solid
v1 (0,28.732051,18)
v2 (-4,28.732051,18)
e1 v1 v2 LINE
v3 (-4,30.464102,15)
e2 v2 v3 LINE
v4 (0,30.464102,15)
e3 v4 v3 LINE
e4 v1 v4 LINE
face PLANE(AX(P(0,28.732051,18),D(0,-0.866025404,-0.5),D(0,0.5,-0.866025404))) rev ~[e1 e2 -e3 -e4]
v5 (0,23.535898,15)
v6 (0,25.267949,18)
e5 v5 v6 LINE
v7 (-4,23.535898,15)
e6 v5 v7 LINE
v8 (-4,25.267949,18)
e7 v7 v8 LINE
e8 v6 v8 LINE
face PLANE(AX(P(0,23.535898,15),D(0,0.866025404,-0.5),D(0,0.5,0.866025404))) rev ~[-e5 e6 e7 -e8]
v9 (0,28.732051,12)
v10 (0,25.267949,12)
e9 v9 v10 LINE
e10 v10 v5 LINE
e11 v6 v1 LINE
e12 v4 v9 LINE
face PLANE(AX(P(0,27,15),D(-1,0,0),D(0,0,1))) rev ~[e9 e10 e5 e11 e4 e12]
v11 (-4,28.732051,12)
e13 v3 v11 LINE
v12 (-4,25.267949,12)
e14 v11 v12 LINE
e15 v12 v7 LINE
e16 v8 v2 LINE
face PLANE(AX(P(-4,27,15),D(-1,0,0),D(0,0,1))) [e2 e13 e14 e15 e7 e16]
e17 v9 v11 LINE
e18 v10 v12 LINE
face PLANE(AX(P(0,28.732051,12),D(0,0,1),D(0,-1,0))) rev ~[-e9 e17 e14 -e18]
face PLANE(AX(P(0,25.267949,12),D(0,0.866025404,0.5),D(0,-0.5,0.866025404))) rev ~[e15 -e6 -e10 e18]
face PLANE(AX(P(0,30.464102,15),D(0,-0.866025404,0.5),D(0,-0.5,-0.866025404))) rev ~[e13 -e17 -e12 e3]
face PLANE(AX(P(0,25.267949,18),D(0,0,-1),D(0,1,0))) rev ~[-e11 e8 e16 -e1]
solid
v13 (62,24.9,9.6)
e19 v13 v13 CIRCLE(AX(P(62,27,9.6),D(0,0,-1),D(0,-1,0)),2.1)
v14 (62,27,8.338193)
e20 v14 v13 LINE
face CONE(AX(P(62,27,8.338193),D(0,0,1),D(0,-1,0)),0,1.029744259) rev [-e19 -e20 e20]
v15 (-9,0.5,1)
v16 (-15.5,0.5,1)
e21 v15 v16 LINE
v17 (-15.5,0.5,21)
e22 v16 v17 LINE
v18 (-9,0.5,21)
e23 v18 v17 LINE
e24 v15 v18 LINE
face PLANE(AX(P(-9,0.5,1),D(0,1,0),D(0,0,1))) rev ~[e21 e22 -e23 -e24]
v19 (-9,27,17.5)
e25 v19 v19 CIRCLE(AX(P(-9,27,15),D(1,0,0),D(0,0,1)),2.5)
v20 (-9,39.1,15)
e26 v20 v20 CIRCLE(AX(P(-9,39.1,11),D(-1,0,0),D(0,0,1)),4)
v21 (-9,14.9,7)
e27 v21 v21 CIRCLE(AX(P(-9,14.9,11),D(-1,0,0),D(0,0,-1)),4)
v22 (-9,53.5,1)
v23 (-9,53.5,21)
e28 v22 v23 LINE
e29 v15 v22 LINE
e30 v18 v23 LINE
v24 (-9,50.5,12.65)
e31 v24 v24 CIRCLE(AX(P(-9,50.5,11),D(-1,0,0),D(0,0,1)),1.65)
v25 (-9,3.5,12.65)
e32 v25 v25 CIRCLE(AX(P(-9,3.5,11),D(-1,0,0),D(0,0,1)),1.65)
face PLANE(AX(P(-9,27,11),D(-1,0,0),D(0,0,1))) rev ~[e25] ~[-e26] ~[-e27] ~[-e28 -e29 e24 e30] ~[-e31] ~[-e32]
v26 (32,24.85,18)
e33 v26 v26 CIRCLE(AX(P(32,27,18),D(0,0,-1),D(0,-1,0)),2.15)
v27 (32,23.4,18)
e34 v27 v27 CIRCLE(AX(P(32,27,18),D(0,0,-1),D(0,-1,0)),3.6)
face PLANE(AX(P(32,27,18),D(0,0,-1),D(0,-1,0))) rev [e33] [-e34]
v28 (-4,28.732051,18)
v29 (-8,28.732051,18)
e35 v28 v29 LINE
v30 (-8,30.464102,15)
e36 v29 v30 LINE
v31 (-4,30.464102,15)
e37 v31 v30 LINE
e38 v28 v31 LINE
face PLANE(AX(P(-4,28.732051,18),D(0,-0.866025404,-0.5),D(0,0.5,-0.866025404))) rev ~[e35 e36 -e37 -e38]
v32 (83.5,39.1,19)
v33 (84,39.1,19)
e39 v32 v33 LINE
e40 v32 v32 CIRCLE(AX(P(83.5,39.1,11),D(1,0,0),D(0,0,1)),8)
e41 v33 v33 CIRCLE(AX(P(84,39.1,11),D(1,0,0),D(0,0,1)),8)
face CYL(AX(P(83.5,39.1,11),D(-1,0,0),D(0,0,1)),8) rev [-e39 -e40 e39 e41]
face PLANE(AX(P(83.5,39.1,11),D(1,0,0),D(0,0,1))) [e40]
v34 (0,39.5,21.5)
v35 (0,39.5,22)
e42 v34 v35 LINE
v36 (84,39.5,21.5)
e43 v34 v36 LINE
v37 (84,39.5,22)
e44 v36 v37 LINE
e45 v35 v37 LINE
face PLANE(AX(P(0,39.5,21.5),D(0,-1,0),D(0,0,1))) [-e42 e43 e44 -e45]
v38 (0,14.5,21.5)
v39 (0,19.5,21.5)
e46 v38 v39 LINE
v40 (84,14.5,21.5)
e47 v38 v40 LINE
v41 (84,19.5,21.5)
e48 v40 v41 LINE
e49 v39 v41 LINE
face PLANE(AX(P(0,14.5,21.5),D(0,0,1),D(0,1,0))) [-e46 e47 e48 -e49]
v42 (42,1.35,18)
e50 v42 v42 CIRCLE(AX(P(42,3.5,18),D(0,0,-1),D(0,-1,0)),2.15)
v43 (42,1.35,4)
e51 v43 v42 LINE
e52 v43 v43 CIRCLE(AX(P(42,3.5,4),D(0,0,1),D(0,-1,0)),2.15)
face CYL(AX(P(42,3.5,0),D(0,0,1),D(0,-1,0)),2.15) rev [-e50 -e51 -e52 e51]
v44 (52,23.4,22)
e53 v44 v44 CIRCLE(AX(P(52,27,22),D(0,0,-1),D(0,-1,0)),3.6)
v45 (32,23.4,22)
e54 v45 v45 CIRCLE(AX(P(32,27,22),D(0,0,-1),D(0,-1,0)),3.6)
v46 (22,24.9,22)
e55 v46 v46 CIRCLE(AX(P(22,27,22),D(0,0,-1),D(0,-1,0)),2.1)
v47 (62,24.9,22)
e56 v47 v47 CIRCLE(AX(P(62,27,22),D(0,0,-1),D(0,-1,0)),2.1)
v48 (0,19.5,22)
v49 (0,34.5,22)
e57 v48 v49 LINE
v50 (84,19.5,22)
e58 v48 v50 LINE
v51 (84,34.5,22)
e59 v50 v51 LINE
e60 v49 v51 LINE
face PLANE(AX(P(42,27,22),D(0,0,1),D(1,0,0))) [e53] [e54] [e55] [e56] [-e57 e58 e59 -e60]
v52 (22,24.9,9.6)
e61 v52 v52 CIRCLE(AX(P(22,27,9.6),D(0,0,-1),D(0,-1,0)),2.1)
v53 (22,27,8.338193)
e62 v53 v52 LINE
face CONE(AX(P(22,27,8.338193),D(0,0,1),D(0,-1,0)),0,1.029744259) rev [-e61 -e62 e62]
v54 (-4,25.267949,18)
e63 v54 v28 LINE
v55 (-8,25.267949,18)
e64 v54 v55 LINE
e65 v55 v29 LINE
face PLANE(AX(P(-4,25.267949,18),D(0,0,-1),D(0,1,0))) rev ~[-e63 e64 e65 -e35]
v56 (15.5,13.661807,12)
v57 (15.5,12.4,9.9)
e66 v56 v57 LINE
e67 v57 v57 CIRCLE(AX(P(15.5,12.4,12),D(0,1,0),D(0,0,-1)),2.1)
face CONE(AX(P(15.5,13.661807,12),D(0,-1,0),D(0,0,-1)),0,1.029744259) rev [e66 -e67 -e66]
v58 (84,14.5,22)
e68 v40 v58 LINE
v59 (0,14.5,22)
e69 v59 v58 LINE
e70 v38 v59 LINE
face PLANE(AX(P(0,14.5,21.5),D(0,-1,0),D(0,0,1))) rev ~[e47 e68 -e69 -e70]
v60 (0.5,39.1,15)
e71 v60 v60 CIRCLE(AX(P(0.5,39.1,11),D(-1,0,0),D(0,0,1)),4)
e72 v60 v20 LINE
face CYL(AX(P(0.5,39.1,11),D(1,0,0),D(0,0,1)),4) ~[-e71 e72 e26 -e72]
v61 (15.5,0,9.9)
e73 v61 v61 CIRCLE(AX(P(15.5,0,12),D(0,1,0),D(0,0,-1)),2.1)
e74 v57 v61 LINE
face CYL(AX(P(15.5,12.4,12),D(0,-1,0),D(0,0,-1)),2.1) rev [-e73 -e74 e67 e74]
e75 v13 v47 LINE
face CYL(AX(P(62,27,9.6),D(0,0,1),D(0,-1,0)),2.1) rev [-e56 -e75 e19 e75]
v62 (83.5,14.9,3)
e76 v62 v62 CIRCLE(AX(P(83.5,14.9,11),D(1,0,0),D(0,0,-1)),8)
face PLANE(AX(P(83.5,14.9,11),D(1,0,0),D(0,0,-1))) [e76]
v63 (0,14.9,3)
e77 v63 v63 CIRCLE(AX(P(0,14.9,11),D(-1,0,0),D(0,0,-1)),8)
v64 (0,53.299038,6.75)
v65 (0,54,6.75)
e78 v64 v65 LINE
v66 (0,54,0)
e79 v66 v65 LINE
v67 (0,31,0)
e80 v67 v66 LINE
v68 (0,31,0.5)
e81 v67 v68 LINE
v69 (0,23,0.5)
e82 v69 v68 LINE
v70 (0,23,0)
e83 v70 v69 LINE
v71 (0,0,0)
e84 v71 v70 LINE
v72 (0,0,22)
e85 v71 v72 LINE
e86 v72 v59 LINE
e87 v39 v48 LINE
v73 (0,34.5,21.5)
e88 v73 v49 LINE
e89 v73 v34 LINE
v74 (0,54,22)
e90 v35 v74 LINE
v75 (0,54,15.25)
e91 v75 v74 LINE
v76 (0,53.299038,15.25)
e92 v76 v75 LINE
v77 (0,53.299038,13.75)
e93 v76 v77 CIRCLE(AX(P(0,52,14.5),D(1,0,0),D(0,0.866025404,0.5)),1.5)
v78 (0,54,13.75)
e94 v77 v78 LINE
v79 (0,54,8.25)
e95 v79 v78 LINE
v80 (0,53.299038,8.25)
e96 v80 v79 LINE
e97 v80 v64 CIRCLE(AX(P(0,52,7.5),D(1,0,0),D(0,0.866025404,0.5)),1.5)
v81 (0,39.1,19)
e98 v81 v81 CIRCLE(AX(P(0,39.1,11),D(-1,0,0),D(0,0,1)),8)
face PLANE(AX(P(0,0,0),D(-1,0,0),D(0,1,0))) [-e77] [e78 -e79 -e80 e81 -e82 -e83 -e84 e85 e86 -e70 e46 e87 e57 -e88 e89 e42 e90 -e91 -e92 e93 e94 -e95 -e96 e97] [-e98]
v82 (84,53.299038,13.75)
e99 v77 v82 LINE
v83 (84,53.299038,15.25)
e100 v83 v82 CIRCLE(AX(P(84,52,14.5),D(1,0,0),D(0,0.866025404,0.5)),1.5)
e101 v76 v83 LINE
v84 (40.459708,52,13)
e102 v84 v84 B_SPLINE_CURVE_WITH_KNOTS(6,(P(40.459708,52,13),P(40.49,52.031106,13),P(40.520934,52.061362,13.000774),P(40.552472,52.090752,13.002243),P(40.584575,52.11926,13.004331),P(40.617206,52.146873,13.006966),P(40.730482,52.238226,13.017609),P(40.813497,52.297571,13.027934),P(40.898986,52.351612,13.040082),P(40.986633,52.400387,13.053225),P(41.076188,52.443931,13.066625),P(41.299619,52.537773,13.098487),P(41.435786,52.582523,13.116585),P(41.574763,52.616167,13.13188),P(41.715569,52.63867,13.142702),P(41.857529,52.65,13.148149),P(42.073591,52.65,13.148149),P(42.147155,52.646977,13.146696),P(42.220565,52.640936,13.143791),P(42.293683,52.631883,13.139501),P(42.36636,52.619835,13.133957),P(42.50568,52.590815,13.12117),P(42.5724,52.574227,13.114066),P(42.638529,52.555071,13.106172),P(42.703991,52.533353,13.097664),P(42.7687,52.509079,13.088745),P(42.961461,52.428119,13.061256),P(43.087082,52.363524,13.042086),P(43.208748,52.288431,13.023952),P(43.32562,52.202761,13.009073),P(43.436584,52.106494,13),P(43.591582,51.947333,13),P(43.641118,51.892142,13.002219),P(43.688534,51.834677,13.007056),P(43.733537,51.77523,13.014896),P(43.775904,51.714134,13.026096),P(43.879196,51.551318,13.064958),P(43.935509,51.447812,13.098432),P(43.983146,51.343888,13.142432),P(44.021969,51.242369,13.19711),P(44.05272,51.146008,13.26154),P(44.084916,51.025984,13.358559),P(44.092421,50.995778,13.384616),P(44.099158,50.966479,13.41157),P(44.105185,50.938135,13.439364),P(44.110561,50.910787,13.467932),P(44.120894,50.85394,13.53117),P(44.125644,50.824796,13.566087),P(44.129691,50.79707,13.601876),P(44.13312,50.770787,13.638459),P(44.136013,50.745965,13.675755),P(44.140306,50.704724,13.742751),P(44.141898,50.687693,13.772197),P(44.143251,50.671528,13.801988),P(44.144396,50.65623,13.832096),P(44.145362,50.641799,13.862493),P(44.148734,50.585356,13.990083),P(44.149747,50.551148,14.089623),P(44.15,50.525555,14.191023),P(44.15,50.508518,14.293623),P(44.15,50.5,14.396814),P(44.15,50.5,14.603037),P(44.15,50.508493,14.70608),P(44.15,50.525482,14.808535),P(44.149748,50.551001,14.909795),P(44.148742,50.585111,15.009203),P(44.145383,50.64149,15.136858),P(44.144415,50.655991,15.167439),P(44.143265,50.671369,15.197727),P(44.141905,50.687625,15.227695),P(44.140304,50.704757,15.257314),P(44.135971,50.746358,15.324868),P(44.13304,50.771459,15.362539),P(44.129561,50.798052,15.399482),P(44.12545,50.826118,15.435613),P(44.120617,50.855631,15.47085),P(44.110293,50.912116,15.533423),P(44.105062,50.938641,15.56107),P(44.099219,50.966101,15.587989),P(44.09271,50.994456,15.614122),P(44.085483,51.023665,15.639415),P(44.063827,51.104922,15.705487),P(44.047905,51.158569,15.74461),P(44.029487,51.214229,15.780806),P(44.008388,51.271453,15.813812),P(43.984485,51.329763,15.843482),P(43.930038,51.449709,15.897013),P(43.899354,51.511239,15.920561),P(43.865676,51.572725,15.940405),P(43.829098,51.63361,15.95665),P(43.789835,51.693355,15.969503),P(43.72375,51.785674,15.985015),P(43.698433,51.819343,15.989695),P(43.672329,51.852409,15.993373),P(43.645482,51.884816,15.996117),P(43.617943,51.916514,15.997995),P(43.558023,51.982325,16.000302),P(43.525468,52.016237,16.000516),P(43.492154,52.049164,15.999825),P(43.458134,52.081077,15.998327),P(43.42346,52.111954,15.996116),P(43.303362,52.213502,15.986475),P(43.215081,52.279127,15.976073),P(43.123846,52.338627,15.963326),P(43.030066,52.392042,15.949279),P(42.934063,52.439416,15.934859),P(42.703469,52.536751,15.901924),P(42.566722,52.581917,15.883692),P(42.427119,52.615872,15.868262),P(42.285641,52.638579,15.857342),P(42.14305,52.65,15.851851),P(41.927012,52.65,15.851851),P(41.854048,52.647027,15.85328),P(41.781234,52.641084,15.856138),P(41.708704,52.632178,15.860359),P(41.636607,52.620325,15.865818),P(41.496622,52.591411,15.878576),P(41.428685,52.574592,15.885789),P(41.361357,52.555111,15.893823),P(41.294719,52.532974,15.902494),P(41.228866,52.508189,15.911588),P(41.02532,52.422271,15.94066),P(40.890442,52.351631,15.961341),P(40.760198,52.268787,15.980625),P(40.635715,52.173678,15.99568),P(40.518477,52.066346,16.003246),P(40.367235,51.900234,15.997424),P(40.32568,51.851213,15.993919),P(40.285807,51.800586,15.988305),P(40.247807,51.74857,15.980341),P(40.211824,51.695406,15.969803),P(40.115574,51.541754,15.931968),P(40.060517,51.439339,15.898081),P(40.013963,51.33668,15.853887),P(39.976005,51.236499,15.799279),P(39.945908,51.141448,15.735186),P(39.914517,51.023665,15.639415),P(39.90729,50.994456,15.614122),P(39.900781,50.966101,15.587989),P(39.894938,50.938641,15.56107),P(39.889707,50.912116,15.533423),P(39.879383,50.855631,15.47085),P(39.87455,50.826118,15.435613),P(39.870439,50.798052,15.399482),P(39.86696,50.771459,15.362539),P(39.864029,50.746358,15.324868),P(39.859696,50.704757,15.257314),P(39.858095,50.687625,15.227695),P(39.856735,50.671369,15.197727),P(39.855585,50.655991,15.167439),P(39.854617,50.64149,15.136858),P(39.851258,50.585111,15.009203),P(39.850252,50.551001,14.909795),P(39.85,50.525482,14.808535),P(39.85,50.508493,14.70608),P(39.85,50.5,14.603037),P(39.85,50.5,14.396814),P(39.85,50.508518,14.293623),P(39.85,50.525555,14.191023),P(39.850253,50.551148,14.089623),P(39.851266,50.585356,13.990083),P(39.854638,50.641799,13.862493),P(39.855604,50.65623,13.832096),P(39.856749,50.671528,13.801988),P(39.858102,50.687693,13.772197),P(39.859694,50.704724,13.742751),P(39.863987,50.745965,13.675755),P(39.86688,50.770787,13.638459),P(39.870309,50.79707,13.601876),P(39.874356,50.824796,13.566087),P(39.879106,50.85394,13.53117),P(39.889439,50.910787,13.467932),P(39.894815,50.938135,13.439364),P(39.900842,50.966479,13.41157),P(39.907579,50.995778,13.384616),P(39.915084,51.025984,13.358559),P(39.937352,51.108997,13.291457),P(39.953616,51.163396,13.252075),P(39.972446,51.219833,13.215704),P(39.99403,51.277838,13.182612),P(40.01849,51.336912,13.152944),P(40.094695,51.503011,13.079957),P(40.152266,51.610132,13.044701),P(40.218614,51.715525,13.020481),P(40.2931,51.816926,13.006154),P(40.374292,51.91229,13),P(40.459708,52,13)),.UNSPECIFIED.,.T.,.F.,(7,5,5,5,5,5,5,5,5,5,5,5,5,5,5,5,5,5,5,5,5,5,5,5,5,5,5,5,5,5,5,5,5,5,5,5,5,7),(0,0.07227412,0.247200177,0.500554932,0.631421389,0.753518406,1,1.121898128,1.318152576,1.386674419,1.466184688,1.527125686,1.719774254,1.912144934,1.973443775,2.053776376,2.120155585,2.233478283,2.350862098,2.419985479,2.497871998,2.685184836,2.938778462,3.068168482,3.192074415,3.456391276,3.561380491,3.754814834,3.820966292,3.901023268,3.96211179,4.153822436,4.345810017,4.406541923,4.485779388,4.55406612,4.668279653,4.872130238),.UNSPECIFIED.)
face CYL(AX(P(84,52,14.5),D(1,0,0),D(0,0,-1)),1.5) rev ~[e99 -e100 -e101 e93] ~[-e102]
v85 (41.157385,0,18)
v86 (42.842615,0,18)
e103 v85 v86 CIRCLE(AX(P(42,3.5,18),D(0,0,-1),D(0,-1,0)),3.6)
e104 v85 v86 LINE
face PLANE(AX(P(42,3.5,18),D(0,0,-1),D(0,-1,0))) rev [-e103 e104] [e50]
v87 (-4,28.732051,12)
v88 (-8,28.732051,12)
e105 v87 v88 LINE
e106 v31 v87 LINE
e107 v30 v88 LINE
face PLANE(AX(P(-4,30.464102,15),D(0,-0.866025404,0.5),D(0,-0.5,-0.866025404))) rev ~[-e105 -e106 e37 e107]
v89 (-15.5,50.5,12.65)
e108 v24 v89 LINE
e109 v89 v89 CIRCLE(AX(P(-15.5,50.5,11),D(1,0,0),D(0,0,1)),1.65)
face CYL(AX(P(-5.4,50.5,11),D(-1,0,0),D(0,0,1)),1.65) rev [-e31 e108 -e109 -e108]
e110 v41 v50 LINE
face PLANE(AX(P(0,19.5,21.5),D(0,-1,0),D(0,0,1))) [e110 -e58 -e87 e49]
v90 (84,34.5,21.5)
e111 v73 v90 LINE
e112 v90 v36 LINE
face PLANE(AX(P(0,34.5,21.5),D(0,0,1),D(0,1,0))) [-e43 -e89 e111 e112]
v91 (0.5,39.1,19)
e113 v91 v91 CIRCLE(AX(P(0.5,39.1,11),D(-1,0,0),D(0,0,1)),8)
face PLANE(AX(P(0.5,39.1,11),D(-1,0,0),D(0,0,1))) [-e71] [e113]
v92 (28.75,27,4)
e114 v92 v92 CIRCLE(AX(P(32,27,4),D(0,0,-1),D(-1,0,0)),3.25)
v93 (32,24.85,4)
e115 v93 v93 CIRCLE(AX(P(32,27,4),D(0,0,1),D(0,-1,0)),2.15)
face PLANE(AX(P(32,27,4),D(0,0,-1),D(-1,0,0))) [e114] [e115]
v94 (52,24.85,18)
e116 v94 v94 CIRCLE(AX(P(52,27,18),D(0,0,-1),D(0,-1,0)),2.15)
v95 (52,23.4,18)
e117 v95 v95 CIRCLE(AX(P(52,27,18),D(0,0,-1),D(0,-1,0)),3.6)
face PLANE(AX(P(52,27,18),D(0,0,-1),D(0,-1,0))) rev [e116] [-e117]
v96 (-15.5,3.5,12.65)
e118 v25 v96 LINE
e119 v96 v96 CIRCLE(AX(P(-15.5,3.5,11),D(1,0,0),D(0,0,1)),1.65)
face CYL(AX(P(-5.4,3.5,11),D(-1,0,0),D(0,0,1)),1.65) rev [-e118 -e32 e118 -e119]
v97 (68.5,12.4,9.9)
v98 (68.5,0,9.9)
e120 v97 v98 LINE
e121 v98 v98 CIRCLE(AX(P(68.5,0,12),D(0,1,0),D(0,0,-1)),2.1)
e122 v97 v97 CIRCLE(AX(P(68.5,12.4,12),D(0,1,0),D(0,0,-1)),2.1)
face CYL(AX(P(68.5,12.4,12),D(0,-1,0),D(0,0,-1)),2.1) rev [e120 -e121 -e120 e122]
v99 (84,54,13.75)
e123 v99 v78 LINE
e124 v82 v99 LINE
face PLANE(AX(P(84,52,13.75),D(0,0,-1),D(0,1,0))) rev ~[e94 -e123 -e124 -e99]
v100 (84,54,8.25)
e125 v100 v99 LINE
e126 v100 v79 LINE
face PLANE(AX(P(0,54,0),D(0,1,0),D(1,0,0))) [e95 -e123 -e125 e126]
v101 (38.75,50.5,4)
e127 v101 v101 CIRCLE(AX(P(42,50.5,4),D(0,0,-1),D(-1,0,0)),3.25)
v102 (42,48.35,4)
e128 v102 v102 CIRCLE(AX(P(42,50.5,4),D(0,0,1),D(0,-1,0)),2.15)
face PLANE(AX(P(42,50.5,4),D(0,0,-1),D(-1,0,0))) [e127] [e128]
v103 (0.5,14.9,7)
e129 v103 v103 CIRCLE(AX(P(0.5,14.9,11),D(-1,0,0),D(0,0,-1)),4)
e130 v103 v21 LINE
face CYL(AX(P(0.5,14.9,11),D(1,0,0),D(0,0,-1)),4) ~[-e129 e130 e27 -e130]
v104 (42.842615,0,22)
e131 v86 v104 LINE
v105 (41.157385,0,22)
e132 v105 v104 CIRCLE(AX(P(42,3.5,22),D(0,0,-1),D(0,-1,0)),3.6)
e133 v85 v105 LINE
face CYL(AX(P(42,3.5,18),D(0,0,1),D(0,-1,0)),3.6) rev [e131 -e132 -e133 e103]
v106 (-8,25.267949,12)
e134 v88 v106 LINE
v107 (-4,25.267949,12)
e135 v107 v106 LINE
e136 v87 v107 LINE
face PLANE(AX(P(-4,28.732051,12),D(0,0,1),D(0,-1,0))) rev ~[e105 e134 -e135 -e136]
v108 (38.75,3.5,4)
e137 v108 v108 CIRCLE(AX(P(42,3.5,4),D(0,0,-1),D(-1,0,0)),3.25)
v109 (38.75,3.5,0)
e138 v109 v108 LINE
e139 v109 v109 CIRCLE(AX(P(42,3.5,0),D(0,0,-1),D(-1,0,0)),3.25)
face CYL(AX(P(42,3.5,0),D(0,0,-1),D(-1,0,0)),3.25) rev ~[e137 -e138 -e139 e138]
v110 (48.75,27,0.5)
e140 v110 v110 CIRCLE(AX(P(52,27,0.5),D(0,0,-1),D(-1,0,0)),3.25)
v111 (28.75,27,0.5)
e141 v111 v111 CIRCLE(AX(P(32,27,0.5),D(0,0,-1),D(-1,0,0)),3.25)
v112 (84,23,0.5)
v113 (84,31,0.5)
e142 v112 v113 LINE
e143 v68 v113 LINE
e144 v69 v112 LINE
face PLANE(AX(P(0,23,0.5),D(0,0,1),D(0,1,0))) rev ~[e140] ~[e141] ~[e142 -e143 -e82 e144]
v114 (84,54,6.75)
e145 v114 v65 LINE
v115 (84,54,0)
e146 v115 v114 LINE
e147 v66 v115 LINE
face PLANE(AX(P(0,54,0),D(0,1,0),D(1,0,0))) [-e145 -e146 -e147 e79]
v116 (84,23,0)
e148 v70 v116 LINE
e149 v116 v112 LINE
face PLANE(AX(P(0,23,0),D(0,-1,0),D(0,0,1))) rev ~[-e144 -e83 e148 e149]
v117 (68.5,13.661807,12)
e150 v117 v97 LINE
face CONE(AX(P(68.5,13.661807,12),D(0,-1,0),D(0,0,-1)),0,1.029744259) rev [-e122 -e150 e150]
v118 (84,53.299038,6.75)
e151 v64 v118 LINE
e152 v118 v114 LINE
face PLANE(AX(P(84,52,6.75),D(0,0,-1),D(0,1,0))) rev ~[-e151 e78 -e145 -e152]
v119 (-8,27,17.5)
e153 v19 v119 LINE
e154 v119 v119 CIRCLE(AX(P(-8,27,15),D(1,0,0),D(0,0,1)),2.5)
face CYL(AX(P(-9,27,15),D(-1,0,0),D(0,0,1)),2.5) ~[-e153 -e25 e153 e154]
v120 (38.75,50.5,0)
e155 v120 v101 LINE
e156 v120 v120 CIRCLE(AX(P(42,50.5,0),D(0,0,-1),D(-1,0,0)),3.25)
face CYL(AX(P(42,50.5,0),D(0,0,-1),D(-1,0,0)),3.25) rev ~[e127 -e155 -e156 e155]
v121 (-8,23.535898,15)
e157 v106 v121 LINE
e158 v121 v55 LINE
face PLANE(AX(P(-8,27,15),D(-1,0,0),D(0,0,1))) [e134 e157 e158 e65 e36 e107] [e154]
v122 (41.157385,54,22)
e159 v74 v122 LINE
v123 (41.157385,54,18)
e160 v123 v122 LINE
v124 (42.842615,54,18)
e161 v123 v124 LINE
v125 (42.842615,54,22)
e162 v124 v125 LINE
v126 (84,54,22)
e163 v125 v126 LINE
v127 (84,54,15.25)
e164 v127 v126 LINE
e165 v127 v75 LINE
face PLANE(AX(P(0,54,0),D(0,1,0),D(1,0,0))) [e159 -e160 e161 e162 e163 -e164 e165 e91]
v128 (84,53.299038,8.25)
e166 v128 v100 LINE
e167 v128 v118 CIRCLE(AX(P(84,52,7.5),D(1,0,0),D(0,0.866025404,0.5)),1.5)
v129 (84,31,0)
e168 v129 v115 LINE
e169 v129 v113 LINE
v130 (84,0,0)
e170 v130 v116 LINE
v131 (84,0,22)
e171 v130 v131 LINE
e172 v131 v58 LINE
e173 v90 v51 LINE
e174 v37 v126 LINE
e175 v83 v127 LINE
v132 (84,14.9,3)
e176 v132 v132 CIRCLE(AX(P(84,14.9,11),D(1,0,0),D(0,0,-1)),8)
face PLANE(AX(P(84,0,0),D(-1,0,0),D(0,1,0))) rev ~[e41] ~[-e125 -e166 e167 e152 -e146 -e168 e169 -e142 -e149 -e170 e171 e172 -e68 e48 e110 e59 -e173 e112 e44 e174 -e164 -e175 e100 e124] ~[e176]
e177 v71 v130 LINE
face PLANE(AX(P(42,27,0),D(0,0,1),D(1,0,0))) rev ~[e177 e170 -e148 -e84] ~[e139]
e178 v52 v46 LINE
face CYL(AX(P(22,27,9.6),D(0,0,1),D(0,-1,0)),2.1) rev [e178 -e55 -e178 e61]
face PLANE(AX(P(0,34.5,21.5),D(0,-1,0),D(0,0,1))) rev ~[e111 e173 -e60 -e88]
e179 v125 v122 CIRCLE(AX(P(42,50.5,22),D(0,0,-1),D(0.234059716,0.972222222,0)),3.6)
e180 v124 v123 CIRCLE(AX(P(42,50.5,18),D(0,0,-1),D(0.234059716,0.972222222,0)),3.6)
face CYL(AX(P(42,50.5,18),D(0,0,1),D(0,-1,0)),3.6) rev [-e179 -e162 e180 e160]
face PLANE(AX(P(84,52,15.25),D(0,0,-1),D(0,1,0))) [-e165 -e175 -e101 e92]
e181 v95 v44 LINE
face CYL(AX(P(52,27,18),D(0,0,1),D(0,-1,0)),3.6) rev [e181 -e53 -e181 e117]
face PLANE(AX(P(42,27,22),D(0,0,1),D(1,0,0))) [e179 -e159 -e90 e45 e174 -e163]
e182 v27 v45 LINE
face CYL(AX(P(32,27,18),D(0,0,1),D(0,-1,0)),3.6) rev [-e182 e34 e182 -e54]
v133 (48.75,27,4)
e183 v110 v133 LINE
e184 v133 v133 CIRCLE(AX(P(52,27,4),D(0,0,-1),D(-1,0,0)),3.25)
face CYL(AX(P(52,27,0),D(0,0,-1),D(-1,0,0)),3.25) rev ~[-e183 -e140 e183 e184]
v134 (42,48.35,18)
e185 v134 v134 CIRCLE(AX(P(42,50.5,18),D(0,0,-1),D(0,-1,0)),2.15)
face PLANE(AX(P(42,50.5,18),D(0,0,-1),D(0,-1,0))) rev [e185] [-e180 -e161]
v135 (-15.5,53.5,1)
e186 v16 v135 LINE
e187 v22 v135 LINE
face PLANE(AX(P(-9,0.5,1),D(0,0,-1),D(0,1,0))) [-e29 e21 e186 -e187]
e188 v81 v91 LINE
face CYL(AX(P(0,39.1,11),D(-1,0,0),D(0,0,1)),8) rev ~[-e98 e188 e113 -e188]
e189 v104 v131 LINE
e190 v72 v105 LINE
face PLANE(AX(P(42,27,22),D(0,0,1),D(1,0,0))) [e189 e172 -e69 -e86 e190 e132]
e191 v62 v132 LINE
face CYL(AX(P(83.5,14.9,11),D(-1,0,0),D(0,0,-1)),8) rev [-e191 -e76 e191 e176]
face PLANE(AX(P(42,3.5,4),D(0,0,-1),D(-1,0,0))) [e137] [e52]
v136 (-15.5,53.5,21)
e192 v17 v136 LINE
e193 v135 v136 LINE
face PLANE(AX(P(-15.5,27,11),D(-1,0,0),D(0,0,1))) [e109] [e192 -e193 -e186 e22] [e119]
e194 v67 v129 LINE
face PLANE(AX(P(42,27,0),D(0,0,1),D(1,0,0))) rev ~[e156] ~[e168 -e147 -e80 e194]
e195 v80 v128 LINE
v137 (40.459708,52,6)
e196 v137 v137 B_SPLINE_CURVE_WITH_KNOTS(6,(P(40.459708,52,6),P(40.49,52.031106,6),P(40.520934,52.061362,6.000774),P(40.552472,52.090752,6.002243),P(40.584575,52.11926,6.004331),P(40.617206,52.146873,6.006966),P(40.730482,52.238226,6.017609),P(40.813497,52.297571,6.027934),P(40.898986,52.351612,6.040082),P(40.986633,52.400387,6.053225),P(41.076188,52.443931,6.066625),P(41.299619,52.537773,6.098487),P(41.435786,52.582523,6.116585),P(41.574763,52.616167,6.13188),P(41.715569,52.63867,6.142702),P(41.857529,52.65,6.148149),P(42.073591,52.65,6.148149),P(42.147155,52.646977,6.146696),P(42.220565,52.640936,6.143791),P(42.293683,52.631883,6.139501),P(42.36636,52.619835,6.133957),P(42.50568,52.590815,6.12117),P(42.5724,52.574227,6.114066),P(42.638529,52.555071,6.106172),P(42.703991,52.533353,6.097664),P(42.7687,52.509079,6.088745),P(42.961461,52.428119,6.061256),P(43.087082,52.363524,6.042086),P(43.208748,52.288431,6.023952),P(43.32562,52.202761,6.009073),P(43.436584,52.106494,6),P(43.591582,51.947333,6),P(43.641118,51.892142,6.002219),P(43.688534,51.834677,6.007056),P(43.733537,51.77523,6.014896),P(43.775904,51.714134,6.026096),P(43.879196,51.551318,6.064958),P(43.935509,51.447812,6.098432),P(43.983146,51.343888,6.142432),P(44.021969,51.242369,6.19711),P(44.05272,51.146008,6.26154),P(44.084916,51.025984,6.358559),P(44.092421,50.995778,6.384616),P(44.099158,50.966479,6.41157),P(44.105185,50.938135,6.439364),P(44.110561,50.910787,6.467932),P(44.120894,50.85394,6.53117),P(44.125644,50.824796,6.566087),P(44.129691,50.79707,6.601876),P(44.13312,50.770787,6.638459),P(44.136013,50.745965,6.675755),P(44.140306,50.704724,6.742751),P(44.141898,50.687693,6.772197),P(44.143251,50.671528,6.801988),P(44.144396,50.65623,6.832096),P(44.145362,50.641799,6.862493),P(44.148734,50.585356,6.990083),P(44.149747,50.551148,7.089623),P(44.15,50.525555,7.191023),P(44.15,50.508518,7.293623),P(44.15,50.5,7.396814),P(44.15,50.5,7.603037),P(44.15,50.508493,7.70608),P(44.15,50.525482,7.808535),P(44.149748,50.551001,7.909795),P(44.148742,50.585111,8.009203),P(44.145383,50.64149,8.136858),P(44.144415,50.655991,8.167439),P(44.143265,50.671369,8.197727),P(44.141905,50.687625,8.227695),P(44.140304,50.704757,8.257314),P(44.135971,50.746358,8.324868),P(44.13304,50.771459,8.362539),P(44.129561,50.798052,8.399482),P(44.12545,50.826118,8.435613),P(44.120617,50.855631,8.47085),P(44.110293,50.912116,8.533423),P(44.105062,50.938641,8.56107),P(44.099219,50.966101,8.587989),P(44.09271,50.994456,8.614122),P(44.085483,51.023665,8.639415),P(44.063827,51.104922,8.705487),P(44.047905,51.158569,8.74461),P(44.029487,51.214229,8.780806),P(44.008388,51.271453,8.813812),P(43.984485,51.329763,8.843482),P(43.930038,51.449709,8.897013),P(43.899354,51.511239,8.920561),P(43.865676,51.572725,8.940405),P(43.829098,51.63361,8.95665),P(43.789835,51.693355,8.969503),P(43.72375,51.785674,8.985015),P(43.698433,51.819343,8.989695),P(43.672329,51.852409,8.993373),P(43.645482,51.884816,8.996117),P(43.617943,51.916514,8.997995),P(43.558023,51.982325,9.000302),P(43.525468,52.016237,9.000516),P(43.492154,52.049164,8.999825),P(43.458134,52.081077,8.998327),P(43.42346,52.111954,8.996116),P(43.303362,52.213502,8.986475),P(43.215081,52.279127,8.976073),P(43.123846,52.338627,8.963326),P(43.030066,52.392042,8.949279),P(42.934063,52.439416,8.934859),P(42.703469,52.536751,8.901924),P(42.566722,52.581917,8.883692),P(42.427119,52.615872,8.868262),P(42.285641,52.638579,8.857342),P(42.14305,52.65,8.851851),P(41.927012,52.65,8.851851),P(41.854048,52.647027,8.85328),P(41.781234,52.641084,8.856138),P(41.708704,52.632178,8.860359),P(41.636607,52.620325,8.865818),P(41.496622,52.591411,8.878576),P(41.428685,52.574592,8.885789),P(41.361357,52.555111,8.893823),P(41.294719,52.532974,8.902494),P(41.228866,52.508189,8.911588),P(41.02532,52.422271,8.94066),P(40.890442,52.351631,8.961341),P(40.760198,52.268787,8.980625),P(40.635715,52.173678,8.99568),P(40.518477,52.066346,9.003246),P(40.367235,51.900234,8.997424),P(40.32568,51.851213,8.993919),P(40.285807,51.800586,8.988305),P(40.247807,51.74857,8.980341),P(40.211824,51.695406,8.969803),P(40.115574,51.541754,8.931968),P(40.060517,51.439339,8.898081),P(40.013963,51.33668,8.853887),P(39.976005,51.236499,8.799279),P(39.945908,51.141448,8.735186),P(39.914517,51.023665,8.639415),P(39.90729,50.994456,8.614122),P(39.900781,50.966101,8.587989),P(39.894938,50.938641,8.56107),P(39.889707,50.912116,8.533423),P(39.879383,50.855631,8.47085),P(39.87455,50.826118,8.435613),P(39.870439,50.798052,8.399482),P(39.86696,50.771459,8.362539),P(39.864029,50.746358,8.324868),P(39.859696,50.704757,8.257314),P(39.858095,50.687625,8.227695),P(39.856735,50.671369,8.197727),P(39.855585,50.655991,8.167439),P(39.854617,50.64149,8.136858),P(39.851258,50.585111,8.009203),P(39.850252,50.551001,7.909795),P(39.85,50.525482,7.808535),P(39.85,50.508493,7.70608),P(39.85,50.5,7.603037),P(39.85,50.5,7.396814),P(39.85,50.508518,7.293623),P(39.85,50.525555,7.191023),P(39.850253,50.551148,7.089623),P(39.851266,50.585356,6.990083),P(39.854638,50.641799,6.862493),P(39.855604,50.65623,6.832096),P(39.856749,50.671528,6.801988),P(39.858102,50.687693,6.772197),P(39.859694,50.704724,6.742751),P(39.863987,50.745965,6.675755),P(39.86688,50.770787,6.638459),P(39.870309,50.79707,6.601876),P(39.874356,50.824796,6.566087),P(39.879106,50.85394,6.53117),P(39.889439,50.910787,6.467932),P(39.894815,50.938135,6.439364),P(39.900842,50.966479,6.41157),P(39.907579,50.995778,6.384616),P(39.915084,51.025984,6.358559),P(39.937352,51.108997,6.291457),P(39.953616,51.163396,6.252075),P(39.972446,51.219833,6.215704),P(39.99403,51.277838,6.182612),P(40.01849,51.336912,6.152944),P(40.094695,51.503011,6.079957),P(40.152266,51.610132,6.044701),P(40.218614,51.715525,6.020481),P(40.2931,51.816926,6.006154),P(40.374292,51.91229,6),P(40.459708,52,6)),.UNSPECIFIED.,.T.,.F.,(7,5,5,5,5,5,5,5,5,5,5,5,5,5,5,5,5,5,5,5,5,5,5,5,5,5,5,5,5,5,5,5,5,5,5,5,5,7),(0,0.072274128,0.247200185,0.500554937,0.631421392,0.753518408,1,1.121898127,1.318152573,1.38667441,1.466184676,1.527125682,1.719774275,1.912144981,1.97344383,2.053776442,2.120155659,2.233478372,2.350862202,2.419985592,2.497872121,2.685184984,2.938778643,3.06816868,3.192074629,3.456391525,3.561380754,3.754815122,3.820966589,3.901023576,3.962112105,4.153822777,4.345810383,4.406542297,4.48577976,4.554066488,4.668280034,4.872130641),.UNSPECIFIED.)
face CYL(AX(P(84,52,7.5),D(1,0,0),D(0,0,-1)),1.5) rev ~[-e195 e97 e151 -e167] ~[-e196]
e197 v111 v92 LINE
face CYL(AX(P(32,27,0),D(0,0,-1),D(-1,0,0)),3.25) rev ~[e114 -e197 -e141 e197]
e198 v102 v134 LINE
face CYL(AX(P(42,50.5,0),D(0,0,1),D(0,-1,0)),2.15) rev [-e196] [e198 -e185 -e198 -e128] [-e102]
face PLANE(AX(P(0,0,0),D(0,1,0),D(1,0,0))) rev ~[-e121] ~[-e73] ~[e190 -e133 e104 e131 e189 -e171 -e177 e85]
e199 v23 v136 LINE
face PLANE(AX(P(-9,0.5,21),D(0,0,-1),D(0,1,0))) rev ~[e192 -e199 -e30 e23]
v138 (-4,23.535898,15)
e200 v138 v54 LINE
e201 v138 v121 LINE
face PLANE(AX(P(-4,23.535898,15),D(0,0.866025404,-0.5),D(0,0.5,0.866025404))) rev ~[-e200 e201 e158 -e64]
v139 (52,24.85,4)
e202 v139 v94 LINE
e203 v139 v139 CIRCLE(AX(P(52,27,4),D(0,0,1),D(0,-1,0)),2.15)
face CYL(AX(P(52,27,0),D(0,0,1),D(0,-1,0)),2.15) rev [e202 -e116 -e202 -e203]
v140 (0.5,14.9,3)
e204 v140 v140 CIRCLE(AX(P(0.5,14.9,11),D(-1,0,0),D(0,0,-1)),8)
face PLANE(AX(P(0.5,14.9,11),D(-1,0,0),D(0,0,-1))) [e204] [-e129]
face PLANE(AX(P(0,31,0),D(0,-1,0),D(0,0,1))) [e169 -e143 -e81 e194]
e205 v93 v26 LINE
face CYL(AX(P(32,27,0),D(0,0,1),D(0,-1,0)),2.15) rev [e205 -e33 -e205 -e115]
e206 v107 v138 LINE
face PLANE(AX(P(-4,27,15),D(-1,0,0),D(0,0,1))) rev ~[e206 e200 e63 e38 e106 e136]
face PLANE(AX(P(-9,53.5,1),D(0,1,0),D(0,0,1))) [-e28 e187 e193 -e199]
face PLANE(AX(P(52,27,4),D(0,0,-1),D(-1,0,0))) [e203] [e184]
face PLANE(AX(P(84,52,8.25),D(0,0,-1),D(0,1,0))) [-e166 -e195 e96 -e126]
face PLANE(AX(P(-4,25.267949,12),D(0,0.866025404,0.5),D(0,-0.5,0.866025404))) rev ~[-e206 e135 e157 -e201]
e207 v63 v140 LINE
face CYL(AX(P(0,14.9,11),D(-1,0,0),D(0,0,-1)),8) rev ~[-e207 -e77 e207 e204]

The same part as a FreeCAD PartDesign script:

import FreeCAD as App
import Part
import Sketcher
from FreeCAD import Vector
Q = App.Units.Quantity


def add_polygon(sketch, points):
    """Adds a closed chain of lines whose ends are joined by coincident constraints."""
    first, n = sketch.GeometryCount, len(points)
    for a, b in zip(points, points[1:] + points[:1]):
        sketch.addGeometry(Part.LineSegment(App.Vector(*a, 0), App.Vector(*b, 0)), False)
    for i in range(n):
        sketch.addConstraint(Sketcher.Constraint("Coincident", first + i, 2, first + (i + 1) % n, 1))

doc = App.newDocument("Part")
body = doc.addObject("PartDesign::Body", "Body")

# Sketch on XY plane
sketch1 = body.newObject("Sketcher::SketchObject", "Sketch")
sketch1.AttachmentSupport = (doc.getObject("XY_Plane"), [""])
sketch1.MapMode = "FlatFace"
add_polygon(sketch1, [(0, 54), (0, 0), (84, 0), (84, 54)])  # lines 0-3
sketch1.addConstraint([
    Sketcher.Constraint("Vertical", 0),
    Sketcher.Constraint("Horizontal", 1),
    Sketcher.Constraint("Vertical", 2),
    Sketcher.Constraint("Horizontal", 3),
    Sketcher.Constraint("Coincident", 0, 2, -1, 1),
    Sketcher.Constraint("DistanceX", 1, 1, 1, 2, Q("84 mm")),
    Sketcher.Constraint("DistanceY", 0, 2, 0, 1, Q("54 mm")),
])
pad1 = body.newObject("PartDesign::Pad", "Pad")
pad1.Profile = sketch1
pad1.Length = 22

# Sketch on YZ plane
sketch2 = body.newObject("Sketcher::SketchObject", "Sketch001")
sketch2.AttachmentSupport = (doc.getObject("YZ_Plane"), [""])
sketch2.MapMode = "FlatFace"
sketch2.addGeometry([
    Part.Circle(Vector(39, 11, 0), Vector(0, 0, 1), 8),
    Part.Circle(Vector(15, 11, 0), Vector(0, 0, 1), 8),
], False)
sketch2.addConstraint([
    Sketcher.Constraint("Equal", 0, 1),
    Sketcher.Constraint("Horizontal", 0, 3, 1, 3),
    Sketcher.Constraint("Diameter", 0, Q("16 mm")),
    Sketcher.Constraint("DistanceY", -1, 1, 0, 3, Q("11 mm")),
    Sketcher.Constraint("DistanceX", -1, 1, 0, 3, Q("39.1 mm")),
    Sketcher.Constraint("DistanceX", -1, 1, 1, 3, Q("14.9 mm")),
])
pocket1 = body.newObject("PartDesign::Pocket", "Pocket")
pocket1.Profile = sketch2
pocket1.Length = 0.5
pocket1.Reversed = True

# Sketch on YZ plane
sketch3 = body.newObject("Sketcher::SketchObject", "Sketch002")
sketch3.AttachmentSupport = (doc.getObject("YZ_Plane"), [""])
sketch3.MapMode = "FlatFace"
sketch3.AttachmentOffset = App.Placement(Vector(0, 0, 83.5), App.Rotation())
sketch3.addGeometry([
    Part.Circle(Vector(39, 11, 0), Vector(0, 0, 1), 8),
    Part.Circle(Vector(15, 11, 0), Vector(0, 0, 1), 8),
], False)
sketch3.addConstraint([
    Sketcher.Constraint("Equal", 0, 1),
    Sketcher.Constraint("Horizontal", 0, 3, 1, 3),
    Sketcher.Constraint("Diameter", 0, Q("16 mm")),
    Sketcher.Constraint("DistanceY", -1, 1, 0, 3, Q("11 mm")),
    Sketcher.Constraint("DistanceX", -1, 1, 0, 3, Q("39.1 mm")),
    Sketcher.Constraint("DistanceX", -1, 1, 1, 3, Q("14.9 mm")),
])
pocket2 = body.newObject("PartDesign::Pocket", "Pocket001")
pocket2.Profile = sketch3
pocket2.Length = 0.5
pocket2.Reversed = True

# Sketch on YZ plane
sketch4 = body.newObject("Sketcher::SketchObject", "Sketch003")
sketch4.AttachmentSupport = (doc.getObject("YZ_Plane"), [""])
sketch4.MapMode = "FlatFace"
sketch4.AttachmentOffset = App.Placement(Vector(0, 0, 0.5), App.Rotation())
sketch4.addGeometry([
    Part.Circle(Vector(39.1, 11, 0), Vector(0, 0, 1), 4),
    Part.Circle(Vector(14.9, 11, 0), Vector(0, 0, 1), 4),
], False)
sketch4.addConstraint([
    Sketcher.Constraint("Equal", 0, 1),
    Sketcher.Constraint("Horizontal", 0, 3, 1, 3),
    Sketcher.Constraint("Diameter", 0, Q("8 mm")),
    Sketcher.Constraint("DistanceY", -1, 1, 0, 3, Q("11 mm")),
    Sketcher.Constraint("DistanceX", -1, 1, 0, 3, Q("39.1 mm")),
    Sketcher.Constraint("DistanceX", -1, 1, 1, 3, Q("14.9 mm")),
])
pad2 = body.newObject("PartDesign::Pad", "Pad001")
pad2.Profile = sketch4
pad2.Length = 9.5
pad2.Reversed = True

# Sketch on YZ plane
sketch5 = body.newObject("Sketcher::SketchObject", "Sketch004")
sketch5.AttachmentSupport = (doc.getObject("YZ_Plane"), [""])
sketch5.MapMode = "FlatFace"
sketch5.AttachmentOffset = App.Placement(Vector(0, 0, -9), App.Rotation())
add_polygon(sketch5, [(54, 1), (0, 1), (0, 21), (54, 21)])  # lines 0-3
sketch5.addConstraint([
    Sketcher.Constraint("Horizontal", 0),
    Sketcher.Constraint("Vertical", 1),
    Sketcher.Constraint("Horizontal", 2),
    Sketcher.Constraint("Vertical", 3),
    Sketcher.Constraint("DistanceX", 0, 2, 0, 1, Q("53 mm")),
    Sketcher.Constraint("DistanceY", 1, 1, 1, 2, Q("20 mm")),
    Sketcher.Constraint("DistanceY", -1, 1, 0, 2, Q("1 mm")),
    Sketcher.Constraint("DistanceX", -1, 1, 0, 2, Q("0.5 mm")),
])
pad3 = body.newObject("PartDesign::Pad", "Pad002")
pad3.Profile = sketch5
pad3.Length = 6.5
pad3.Reversed = True
body2 = doc.addObject("PartDesign::Body", "Body001")

# Sketch on YZ plane
sketch6 = body2.newObject("Sketcher::SketchObject", "Sketch005")
sketch6.AttachmentSupport = (doc.getObject("YZ_Plane001"), [""])
sketch6.MapMode = "FlatFace"
add_polygon(sketch6, [(25.3, 18), (28.7, 18), (30.5, 15), (28.7, 12), (25.3, 12), (23.5, 15)])  # lines 0-5
sketch6.addConstraint([
    Sketcher.Constraint("Horizontal", 0),
    Sketcher.Constraint("Horizontal", 3),
    Sketcher.Constraint("Parallel", 1, 4),
    Sketcher.Constraint("Parallel", 2, 5),
    Sketcher.Constraint("Horizontal", 1, 2, 4, 2),
    Sketcher.Constraint("Vertical", 0, 2, 2, 2),
    Sketcher.Constraint("Vertical", 3, 2, 5, 2),
    Sketcher.Constraint("Angle", 1, Q("-60 deg")),
    Sketcher.Constraint("DistanceY", -1, 1, 0, 2, Q("18 mm")),
    Sketcher.Constraint("DistanceY", -1, 1, 1, 2, Q("15 mm")),
    Sketcher.Constraint("DistanceX", 0, 1, 0, 2, Q("3.464102 mm")),
    Sketcher.Constraint("DistanceX", -1, 1, 1, 2, Q("30.464102 mm")),
])
pad4 = body2.newObject("PartDesign::Pad", "Pad003")
pad4.Profile = sketch6
pad4.Length = 4
pad4.Reversed = True
body3 = doc.addObject("PartDesign::Body", "Body002")

# Sketch on YZ plane
sketch7 = body3.newObject("Sketcher::SketchObject", "Sketch006")
sketch7.AttachmentSupport = (doc.getObject("YZ_Plane002"), [""])
sketch7.MapMode = "FlatFace"
sketch7.AttachmentOffset = App.Placement(Vector(0, 0, -4), App.Rotation())
add_polygon(sketch7, [(25.3, 18), (28.7, 18), (30.5, 15), (28.7, 12), (25.3, 12), (23.5, 15)])  # lines 0-5
sketch7.addConstraint([
    Sketcher.Constraint("Horizontal", 0),
    Sketcher.Constraint("Horizontal", 3),
    Sketcher.Constraint("Parallel", 1, 4),
    Sketcher.Constraint("Parallel", 2, 5),
    Sketcher.Constraint("Horizontal", 1, 2, 4, 2),
    Sketcher.Constraint("Vertical", 0, 2, 2, 2),
    Sketcher.Constraint("Vertical", 3, 2, 5, 2),
    Sketcher.Constraint("Angle", 1, Q("-60 deg")),
    Sketcher.Constraint("DistanceY", -1, 1, 0, 2, Q("18 mm")),
    Sketcher.Constraint("DistanceY", -1, 1, 1, 2, Q("15 mm")),
    Sketcher.Constraint("DistanceX", 0, 1, 0, 2, Q("3.464102 mm")),
    Sketcher.Constraint("DistanceX", -1, 1, 1, 2, Q("30.464102 mm")),
])
pad5 = body3.newObject("PartDesign::Pad", "Pad004")
pad5.Profile = sketch7
pad5.Length = 4
pad5.Reversed = True
body.AllowCompound = True
doc.recompute()

boolean = body.newObject("PartDesign::Boolean", "Boolean")
boolean.Type = "Fuse"
boolean.addObjects([body3])

# Sketch on YZ plane
sketch8 = body.newObject("Sketcher::SketchObject", "Sketch007")
sketch8.AttachmentSupport = (doc.getObject("YZ_Plane"), [""])
sketch8.MapMode = "FlatFace"
sketch8.AttachmentOffset = App.Placement(Vector(0, 0, -9), App.Rotation())
sketch8.addGeometry(Part.Circle(Vector(27, 15, 0), Vector(0, 0, 1), 2.5), False)
sketch8.addConstraint([
    Sketcher.Constraint("Diameter", 0, Q("5 mm")),
    Sketcher.Constraint("DistanceX", -1, 1, 0, 3, Q("27 mm")),
    Sketcher.Constraint("DistanceY", -1, 1, 0, 3, Q("15 mm")),
])
pad6 = body.newObject("PartDesign::Pad", "Pad005")
pad6.Profile = sketch8
pad6.Length = 1

# Sketch on XZ plane
sketch9 = body.newObject("Sketcher::SketchObject", "Sketch008")
sketch9.AttachmentSupport = (doc.getObject("XZ_Plane"), [""])
sketch9.MapMode = "FlatFace"
sketch9.AttachmentOffset = App.Placement(Vector(0, 0, -50.5), App.Rotation())
add_polygon(sketch9, [(-4.4, 11), (-15.5, 11), (-15.5, 12.7), (-5.4, 12.7)])  # lines 0-3
sketch9.addGeometry(Part.LineSegment(Vector(-15.5, 11, 0), Vector(-4.4, 11, 0)), True)  # axis
sketch9.addConstraint([
    Sketcher.Constraint("Horizontal", 0),
    Sketcher.Constraint("Vertical", 1),
    Sketcher.Constraint("Horizontal", 2),
    Sketcher.Constraint("Horizontal", 4),
    Sketcher.Constraint("Coincident", 4, 1, 0, 2),
    Sketcher.Constraint("Equal", 0, 4),
    Sketcher.Constraint("Angle", 3, Q("-59 deg")),
    Sketcher.Constraint("DistanceX", 2, 1, 2, 2, Q("10.1 mm")),
    Sketcher.Constraint("DistanceY", -1, 1, 0, 2, Q("11 mm")),
    Sketcher.Constraint("DistanceY", 1, 1, 1, 2, Q("1.65 mm")),
    Sketcher.Constraint("DistanceX", 0, 2, -1, 1, Q("15.5 mm")),
])
groove = body.newObject("PartDesign::Groove", "Groove")
groove.Profile = sketch9
groove.ReferenceAxis = (sketch9, ["Axis0"])
groove.Angle = 360
doc.recompute()

linearpattern = body.newObject("PartDesign::LinearPattern", "LinearPattern")
linearpattern.Originals = [groove]
linearpattern.Direction = (doc.getObject("Y_Axis"), [""])
linearpattern.Mode = "offset"
linearpattern.Offset = 47
linearpattern.Occurrences = 2
linearpattern.Reversed = True
body.Tip = linearpattern

# Sketch on YZ plane
sketch10 = body.newObject("Sketcher::SketchObject", "Sketch009")
sketch10.AttachmentSupport = (doc.getObject("YZ_Plane"), [""])
sketch10.MapMode = "FlatFace"
sketch10.AttachmentOffset = App.Placement(Vector(0, 0, 84), App.Rotation())
sketch10.addGeometry([
    Part.Circle(Vector(52, 14.5, 0), Vector(0, 0, 1), 1.5),
    Part.Circle(Vector(52, 7.5, 0), Vector(0, 0, 1), 1.5),
], False)
sketch10.addConstraint([
    Sketcher.Constraint("Equal", 0, 1),
    Sketcher.Constraint("Vertical", 0, 3, 1, 3),
    Sketcher.Constraint("Diameter", 0, Q("3 mm")),
    Sketcher.Constraint("DistanceX", -1, 1, 0, 3, Q("52 mm")),
    Sketcher.Constraint("DistanceY", 1, 3, 0, 3, Q("7 mm")),
    Sketcher.Constraint("DistanceY", -1, 1, 0, 3, Q("14.5 mm")),
])
pocket3 = body.newObject("PartDesign::Pocket", "Pocket002")
pocket3.Profile = sketch10
pocket3.Length = 84

# Sketch on YZ plane
sketch11 = body.newObject("Sketcher::SketchObject", "Sketch010")
sketch11.AttachmentSupport = (doc.getObject("YZ_Plane"), [""])
sketch11.MapMode = "FlatFace"
sketch11.AttachmentOffset = App.Placement(Vector(0, 0, 84), App.Rotation())
add_polygon(sketch11, [(54, 15.2), (52, 15.2), (52, 13.8), (54, 13.8)])  # lines 0-3
add_polygon(sketch11, [(54, 8.2), (52, 8.2), (52, 6.8), (54, 6.8)])  # lines 4-7
sketch11.addConstraint([
    Sketcher.Constraint("Horizontal", 0),
    Sketcher.Constraint("Vertical", 1),
    Sketcher.Constraint("Horizontal", 2),
    Sketcher.Constraint("Vertical", 3),
    Sketcher.Constraint("Horizontal", 4),
    Sketcher.Constraint("Vertical", 5),
    Sketcher.Constraint("Horizontal", 6),
    Sketcher.Constraint("Vertical", 7),
    Sketcher.Constraint("Vertical", 1, 2, 4, 2),
    Sketcher.Constraint("Vertical", 3, 2, 6, 2),
    Sketcher.Constraint("Equal", 3, 5),
    Sketcher.Constraint("DistanceX", 0, 2, 0, 1, Q("2 mm")),
    Sketcher.Constraint("DistanceY", 1, 2, 1, 1, Q("1.5 mm")),
    Sketcher.Constraint("DistanceX", -1, 1, 0, 2, Q("52 mm")),
    Sketcher.Constraint("DistanceY", 4, 2, 0, 2, Q("7 mm")),
    Sketcher.Constraint("DistanceY", -1, 1, 0, 2, Q("15.25 mm")),
])
pocket4 = body.newObject("PartDesign::Pocket", "Pocket003")
pocket4.Profile = sketch11
pocket4.Length = 84

# Sketch on YZ plane
sketch12 = body.newObject("Sketcher::SketchObject", "Sketch011")
sketch12.AttachmentSupport = (doc.getObject("YZ_Plane"), [""])
sketch12.MapMode = "FlatFace"
sketch12.AttachmentOffset = App.Placement(Vector(0, 0, 15.5), App.Rotation())
add_polygon(sketch12, [(13.7, 12), (0, 12), (0, 9.9), (12.4, 9.9)])  # lines 0-3
sketch12.addGeometry(Part.LineSegment(Vector(0, 12, 0), Vector(13.7, 12, 0)), True)  # axis
sketch12.addConstraint([
    Sketcher.Constraint("Horizontal", 0),
    Sketcher.Constraint("Vertical", 1),
    Sketcher.Constraint("Horizontal", 2),
    Sketcher.Constraint("Horizontal", 4),
    Sketcher.Constraint("Coincident", 4, 1, 0, 2),
    Sketcher.Constraint("PointOnObject", 0, 2, -2),
    Sketcher.Constraint("Equal", 0, 4),
    Sketcher.Constraint("Angle", 3, Q("59 deg")),
    Sketcher.Constraint("DistanceX", 2, 1, 2, 2, Q("12.4 mm")),
    Sketcher.Constraint("DistanceY", 1, 2, 1, 1, Q("2.1 mm")),
    Sketcher.Constraint("DistanceY", -1, 1, 0, 2, Q("12 mm")),
])
groove2 = body.newObject("PartDesign::Groove", "Groove001")
groove2.Profile = sketch12
groove2.ReferenceAxis = (sketch12, ["Axis0"])
groove2.Angle = 360
doc.recompute()

linearpattern2 = body.newObject("PartDesign::LinearPattern", "LinearPattern001")
linearpattern2.Originals = [groove2]
linearpattern2.Direction = (doc.getObject("X_Axis"), [""])
linearpattern2.Mode = "offset"
linearpattern2.Offset = 53
linearpattern2.Occurrences = 2
body.Tip = linearpattern2

# Sketch on YZ plane
sketch13 = body.newObject("Sketcher::SketchObject", "Sketch012")
sketch13.AttachmentSupport = (doc.getObject("YZ_Plane"), [""])
sketch13.MapMode = "FlatFace"
add_polygon(sketch13, [(31, 0), (23, 0), (23, 0.5), (31, 0.5)])  # lines 0-3
add_polygon(sketch13, [(39.5, 21.5), (34.5, 21.5), (34.5, 22), (39.5, 22)])  # lines 4-7
add_polygon(sketch13, [(19.5, 21.5), (14.5, 21.5), (14.5, 22), (19.5, 22)])  # lines 8-11
sketch13.addConstraint([
    Sketcher.Constraint("Horizontal", 0),
    Sketcher.Constraint("Vertical", 1),
    Sketcher.Constraint("Horizontal", 2),
    Sketcher.Constraint("Vertical", 3),
    Sketcher.Constraint("Horizontal", 4),
    Sketcher.Constraint("Vertical", 5),
    Sketcher.Constraint("Horizontal", 6),
    Sketcher.Constraint("Vertical", 7),
    Sketcher.Constraint("Horizontal", 8),
    Sketcher.Constraint("Vertical", 9),
    Sketcher.Constraint("Horizontal", 10),
    Sketcher.Constraint("Vertical", 11),
    Sketcher.Constraint("PointOnObject", 0, 2, -1),
    Sketcher.Constraint("Horizontal", 7, 2, 8, 2),
    Sketcher.Constraint("Horizontal", 6, 2, 9, 2),
    Sketcher.Constraint("Equal", 6, 8),
    Sketcher.Constraint("Equal", 3, 5),
    Sketcher.Constraint("DistanceX", 0, 2, 0, 1, Q("8 mm")),
    Sketcher.Constraint("DistanceX", 4, 2, 4, 1, Q("5 mm")),
    Sketcher.Constraint("DistanceY", 1, 1, 1, 2, Q("0.5 mm")),
    Sketcher.Constraint("DistanceX", -1, 1, 0, 2, Q("23 mm")),
    Sketcher.Constraint("DistanceY", -1, 1, 5, 2, Q("22 mm")),
    Sketcher.Constraint("DistanceX", 8, 2, 4, 2, Q("20 mm")),
    Sketcher.Constraint("DistanceX", -1, 1, 4, 2, Q("34.5 mm")),
])
pocket5 = body.newObject("PartDesign::Pocket", "Pocket004")
pocket5.Profile = sketch13
pocket5.Length = 84
pocket5.Reversed = True

# Sketch on YZ plane
sketch14 = body.newObject("Sketcher::SketchObject", "Sketch013")
sketch14.AttachmentSupport = (doc.getObject("YZ_Plane"), [""])
sketch14.MapMode = "FlatFace"
sketch14.AttachmentOffset = App.Placement(Vector(0, 0, 22), App.Rotation())
add_polygon(sketch14, [(27, 8.3), (27, 22), (24.9, 22), (24.9, 9.6)])  # lines 0-3
sketch14.addGeometry(Part.LineSegment(Vector(27, 22, 0), Vector(27, 8.3, 0)), True)  # axis
sketch14.addConstraint([
    Sketcher.Constraint("Vertical", 0),
    Sketcher.Constraint("Horizontal", 1),
    Sketcher.Constraint("Vertical", 2),
    Sketcher.Constraint("Vertical", 4),
    Sketcher.Constraint("Coincident", 4, 1, 0, 2),
    Sketcher.Constraint("Equal", 0, 4),
    Sketcher.Constraint("Angle", 3, Q("-31 deg")),
    Sketcher.Constraint("DistanceX", 1, 2, 1, 1, Q("2.1 mm")),
    Sketcher.Constraint("DistanceY", 2, 2, 2, 1, Q("12.4 mm")),
    Sketcher.Constraint("DistanceX", -1, 1, 0, 2, Q("27 mm")),
    Sketcher.Constraint("DistanceY", -1, 1, 0, 2, Q("22 mm")),
])
groove3 = body.newObject("PartDesign::Groove", "Groove002")
groove3.Profile = sketch14
groove3.ReferenceAxis = (sketch14, ["Axis0"])
groove3.Angle = 360
doc.recompute()

linearpattern3 = body.newObject("PartDesign::LinearPattern", "LinearPattern002")
linearpattern3.Originals = [groove3]
linearpattern3.Direction = (doc.getObject("X_Axis"), [""])
linearpattern3.Mode = "offset"
linearpattern3.Offset = 40
linearpattern3.Occurrences = 2
body.Tip = linearpattern3

# Sketch on YZ plane
sketch15 = body.newObject("Sketcher::SketchObject", "Sketch014")
sketch15.AttachmentSupport = (doc.getObject("YZ_Plane"), [""])
sketch15.MapMode = "FlatFace"
sketch15.AttachmentOffset = App.Placement(Vector(0, 0, 32), App.Rotation())
add_polygon(sketch15, [(27, 0), (27, 22), (23.4, 22), (23.4, 18), (24.9, 18), (24.9, 0)])  # lines 0-5
sketch15.addGeometry(Part.LineSegment(Vector(27, 22, 0), Vector(27, 0, 0)), True)  # axis
sketch15.addConstraint([
    Sketcher.Constraint("Vertical", 0),
    Sketcher.Constraint("Horizontal", 1),
    Sketcher.Constraint("Vertical", 2),
    Sketcher.Constraint("Horizontal", 3),
    Sketcher.Constraint("Vertical", 4),
    Sketcher.Constraint("Horizontal", 5),
    Sketcher.Constraint("Vertical", 6),
    Sketcher.Constraint("Coincident", 6, 1, 0, 2),
    Sketcher.Constraint("PointOnObject", 4, 2, -1),
    Sketcher.Constraint("PointOnObject", 6, 2, -1),
    Sketcher.Constraint("DistanceY", 0, 1, 0, 2, Q("22 mm")),
    Sketcher.Constraint("DistanceY", 2, 2, 2, 1, Q("4 mm")),
    Sketcher.Constraint("DistanceX", 1, 2, 1, 1, Q("3.6 mm")),
    Sketcher.Constraint("DistanceX", -1, 1, 0, 2, Q("27 mm")),
    Sketcher.Constraint("DistanceX", 3, 1, 3, 2, Q("1.45 mm")),
])
groove4 = body.newObject("PartDesign::Groove", "Groove003")
groove4.Profile = sketch15
groove4.ReferenceAxis = (sketch15, ["Axis0"])
groove4.Angle = 360
doc.recompute()

datumline = body.newObject("PartDesign::Line", "DatumLine")
datumline.Placement = App.Placement(Vector(0, 0, 0), App.Rotation(Vector(0, 0, 1), Vector(0.391555164, 0.920154636, 0)))
linearpattern4 = body.newObject("PartDesign::LinearPattern", "LinearPattern003")
linearpattern4.Originals = [groove4]
linearpattern4.Direction = (datumline, [""])
linearpattern4.Mode = "offset"
linearpattern4.Offset = 25.539186
linearpattern4.Occurrences = 2
body.Tip = linearpattern4
doc.recompute()

datumline2 = body.newObject("PartDesign::Line", "DatumLine001")
datumline2.Placement = App.Placement(Vector(0, 0, 0), App.Rotation(Vector(0, 0, 1), Vector(0.391555164, -0.920154636, 0)))
linearpattern5 = body.newObject("PartDesign::LinearPattern", "LinearPattern004")
linearpattern5.Originals = [groove4]
linearpattern5.Direction = (datumline2, [""])
linearpattern5.Mode = "offset"
linearpattern5.Offset = 25.539186
linearpattern5.Occurrences = 2
body.Tip = linearpattern5
doc.recompute()

linearpattern6 = body.newObject("PartDesign::LinearPattern", "LinearPattern005")
linearpattern6.Originals = [groove4]
linearpattern6.Direction = (doc.getObject("X_Axis"), [""])
linearpattern6.Mode = "offset"
linearpattern6.Offset = 20
linearpattern6.Occurrences = 2
body.Tip = linearpattern6

# Sketch on XY plane
sketch16 = body.newObject("Sketcher::SketchObject", "Sketch015")
sketch16.AttachmentSupport = (doc.getObject("XY_Plane"), [""])
sketch16.MapMode = "FlatFace"
sketch16.addGeometry([
    Part.Circle(Vector(42, 50.5, 0), Vector(0, 0, 1), 3.2),
    Part.Circle(Vector(32, 27, 0), Vector(0, 0, 1), 3.2),
    Part.Circle(Vector(52, 27, 0), Vector(0, 0, 1), 3.2),
    Part.Circle(Vector(42, 3.5, 0), Vector(0, 0, 1), 3.2),
], False)
sketch16.addConstraint([
    Sketcher.Constraint("Equal", 0, 1),
    Sketcher.Constraint("Equal", 1, 2),
    Sketcher.Constraint("Equal", 2, 3),
    Sketcher.Constraint("Horizontal", 1, 3, 2, 3),
    Sketcher.Constraint("Vertical", 0, 3, 3, 3),
    Sketcher.Constraint("Diameter", 0, Q("6.5 mm")),
    Sketcher.Constraint("DistanceX", -1, 1, 0, 3, Q("42 mm")),
    Sketcher.Constraint("DistanceX", -1, 1, 1, 3, Q("32 mm")),
    Sketcher.Constraint("DistanceY", -1, 1, 1, 3, Q("27 mm")),
    Sketcher.Constraint("DistanceX", -1, 1, 2, 3, Q("52 mm")),
    Sketcher.Constraint("DistanceY", 3, 3, 0, 3, Q("47 mm")),
    Sketcher.Constraint("DistanceY", -1, 1, 0, 3, Q("50.5 mm")),
])
pocket6 = body.newObject("PartDesign::Pocket", "Pocket005")
pocket6.Profile = sketch16
pocket6.Length = 4
pocket6.Reversed = True

doc.recompute()
